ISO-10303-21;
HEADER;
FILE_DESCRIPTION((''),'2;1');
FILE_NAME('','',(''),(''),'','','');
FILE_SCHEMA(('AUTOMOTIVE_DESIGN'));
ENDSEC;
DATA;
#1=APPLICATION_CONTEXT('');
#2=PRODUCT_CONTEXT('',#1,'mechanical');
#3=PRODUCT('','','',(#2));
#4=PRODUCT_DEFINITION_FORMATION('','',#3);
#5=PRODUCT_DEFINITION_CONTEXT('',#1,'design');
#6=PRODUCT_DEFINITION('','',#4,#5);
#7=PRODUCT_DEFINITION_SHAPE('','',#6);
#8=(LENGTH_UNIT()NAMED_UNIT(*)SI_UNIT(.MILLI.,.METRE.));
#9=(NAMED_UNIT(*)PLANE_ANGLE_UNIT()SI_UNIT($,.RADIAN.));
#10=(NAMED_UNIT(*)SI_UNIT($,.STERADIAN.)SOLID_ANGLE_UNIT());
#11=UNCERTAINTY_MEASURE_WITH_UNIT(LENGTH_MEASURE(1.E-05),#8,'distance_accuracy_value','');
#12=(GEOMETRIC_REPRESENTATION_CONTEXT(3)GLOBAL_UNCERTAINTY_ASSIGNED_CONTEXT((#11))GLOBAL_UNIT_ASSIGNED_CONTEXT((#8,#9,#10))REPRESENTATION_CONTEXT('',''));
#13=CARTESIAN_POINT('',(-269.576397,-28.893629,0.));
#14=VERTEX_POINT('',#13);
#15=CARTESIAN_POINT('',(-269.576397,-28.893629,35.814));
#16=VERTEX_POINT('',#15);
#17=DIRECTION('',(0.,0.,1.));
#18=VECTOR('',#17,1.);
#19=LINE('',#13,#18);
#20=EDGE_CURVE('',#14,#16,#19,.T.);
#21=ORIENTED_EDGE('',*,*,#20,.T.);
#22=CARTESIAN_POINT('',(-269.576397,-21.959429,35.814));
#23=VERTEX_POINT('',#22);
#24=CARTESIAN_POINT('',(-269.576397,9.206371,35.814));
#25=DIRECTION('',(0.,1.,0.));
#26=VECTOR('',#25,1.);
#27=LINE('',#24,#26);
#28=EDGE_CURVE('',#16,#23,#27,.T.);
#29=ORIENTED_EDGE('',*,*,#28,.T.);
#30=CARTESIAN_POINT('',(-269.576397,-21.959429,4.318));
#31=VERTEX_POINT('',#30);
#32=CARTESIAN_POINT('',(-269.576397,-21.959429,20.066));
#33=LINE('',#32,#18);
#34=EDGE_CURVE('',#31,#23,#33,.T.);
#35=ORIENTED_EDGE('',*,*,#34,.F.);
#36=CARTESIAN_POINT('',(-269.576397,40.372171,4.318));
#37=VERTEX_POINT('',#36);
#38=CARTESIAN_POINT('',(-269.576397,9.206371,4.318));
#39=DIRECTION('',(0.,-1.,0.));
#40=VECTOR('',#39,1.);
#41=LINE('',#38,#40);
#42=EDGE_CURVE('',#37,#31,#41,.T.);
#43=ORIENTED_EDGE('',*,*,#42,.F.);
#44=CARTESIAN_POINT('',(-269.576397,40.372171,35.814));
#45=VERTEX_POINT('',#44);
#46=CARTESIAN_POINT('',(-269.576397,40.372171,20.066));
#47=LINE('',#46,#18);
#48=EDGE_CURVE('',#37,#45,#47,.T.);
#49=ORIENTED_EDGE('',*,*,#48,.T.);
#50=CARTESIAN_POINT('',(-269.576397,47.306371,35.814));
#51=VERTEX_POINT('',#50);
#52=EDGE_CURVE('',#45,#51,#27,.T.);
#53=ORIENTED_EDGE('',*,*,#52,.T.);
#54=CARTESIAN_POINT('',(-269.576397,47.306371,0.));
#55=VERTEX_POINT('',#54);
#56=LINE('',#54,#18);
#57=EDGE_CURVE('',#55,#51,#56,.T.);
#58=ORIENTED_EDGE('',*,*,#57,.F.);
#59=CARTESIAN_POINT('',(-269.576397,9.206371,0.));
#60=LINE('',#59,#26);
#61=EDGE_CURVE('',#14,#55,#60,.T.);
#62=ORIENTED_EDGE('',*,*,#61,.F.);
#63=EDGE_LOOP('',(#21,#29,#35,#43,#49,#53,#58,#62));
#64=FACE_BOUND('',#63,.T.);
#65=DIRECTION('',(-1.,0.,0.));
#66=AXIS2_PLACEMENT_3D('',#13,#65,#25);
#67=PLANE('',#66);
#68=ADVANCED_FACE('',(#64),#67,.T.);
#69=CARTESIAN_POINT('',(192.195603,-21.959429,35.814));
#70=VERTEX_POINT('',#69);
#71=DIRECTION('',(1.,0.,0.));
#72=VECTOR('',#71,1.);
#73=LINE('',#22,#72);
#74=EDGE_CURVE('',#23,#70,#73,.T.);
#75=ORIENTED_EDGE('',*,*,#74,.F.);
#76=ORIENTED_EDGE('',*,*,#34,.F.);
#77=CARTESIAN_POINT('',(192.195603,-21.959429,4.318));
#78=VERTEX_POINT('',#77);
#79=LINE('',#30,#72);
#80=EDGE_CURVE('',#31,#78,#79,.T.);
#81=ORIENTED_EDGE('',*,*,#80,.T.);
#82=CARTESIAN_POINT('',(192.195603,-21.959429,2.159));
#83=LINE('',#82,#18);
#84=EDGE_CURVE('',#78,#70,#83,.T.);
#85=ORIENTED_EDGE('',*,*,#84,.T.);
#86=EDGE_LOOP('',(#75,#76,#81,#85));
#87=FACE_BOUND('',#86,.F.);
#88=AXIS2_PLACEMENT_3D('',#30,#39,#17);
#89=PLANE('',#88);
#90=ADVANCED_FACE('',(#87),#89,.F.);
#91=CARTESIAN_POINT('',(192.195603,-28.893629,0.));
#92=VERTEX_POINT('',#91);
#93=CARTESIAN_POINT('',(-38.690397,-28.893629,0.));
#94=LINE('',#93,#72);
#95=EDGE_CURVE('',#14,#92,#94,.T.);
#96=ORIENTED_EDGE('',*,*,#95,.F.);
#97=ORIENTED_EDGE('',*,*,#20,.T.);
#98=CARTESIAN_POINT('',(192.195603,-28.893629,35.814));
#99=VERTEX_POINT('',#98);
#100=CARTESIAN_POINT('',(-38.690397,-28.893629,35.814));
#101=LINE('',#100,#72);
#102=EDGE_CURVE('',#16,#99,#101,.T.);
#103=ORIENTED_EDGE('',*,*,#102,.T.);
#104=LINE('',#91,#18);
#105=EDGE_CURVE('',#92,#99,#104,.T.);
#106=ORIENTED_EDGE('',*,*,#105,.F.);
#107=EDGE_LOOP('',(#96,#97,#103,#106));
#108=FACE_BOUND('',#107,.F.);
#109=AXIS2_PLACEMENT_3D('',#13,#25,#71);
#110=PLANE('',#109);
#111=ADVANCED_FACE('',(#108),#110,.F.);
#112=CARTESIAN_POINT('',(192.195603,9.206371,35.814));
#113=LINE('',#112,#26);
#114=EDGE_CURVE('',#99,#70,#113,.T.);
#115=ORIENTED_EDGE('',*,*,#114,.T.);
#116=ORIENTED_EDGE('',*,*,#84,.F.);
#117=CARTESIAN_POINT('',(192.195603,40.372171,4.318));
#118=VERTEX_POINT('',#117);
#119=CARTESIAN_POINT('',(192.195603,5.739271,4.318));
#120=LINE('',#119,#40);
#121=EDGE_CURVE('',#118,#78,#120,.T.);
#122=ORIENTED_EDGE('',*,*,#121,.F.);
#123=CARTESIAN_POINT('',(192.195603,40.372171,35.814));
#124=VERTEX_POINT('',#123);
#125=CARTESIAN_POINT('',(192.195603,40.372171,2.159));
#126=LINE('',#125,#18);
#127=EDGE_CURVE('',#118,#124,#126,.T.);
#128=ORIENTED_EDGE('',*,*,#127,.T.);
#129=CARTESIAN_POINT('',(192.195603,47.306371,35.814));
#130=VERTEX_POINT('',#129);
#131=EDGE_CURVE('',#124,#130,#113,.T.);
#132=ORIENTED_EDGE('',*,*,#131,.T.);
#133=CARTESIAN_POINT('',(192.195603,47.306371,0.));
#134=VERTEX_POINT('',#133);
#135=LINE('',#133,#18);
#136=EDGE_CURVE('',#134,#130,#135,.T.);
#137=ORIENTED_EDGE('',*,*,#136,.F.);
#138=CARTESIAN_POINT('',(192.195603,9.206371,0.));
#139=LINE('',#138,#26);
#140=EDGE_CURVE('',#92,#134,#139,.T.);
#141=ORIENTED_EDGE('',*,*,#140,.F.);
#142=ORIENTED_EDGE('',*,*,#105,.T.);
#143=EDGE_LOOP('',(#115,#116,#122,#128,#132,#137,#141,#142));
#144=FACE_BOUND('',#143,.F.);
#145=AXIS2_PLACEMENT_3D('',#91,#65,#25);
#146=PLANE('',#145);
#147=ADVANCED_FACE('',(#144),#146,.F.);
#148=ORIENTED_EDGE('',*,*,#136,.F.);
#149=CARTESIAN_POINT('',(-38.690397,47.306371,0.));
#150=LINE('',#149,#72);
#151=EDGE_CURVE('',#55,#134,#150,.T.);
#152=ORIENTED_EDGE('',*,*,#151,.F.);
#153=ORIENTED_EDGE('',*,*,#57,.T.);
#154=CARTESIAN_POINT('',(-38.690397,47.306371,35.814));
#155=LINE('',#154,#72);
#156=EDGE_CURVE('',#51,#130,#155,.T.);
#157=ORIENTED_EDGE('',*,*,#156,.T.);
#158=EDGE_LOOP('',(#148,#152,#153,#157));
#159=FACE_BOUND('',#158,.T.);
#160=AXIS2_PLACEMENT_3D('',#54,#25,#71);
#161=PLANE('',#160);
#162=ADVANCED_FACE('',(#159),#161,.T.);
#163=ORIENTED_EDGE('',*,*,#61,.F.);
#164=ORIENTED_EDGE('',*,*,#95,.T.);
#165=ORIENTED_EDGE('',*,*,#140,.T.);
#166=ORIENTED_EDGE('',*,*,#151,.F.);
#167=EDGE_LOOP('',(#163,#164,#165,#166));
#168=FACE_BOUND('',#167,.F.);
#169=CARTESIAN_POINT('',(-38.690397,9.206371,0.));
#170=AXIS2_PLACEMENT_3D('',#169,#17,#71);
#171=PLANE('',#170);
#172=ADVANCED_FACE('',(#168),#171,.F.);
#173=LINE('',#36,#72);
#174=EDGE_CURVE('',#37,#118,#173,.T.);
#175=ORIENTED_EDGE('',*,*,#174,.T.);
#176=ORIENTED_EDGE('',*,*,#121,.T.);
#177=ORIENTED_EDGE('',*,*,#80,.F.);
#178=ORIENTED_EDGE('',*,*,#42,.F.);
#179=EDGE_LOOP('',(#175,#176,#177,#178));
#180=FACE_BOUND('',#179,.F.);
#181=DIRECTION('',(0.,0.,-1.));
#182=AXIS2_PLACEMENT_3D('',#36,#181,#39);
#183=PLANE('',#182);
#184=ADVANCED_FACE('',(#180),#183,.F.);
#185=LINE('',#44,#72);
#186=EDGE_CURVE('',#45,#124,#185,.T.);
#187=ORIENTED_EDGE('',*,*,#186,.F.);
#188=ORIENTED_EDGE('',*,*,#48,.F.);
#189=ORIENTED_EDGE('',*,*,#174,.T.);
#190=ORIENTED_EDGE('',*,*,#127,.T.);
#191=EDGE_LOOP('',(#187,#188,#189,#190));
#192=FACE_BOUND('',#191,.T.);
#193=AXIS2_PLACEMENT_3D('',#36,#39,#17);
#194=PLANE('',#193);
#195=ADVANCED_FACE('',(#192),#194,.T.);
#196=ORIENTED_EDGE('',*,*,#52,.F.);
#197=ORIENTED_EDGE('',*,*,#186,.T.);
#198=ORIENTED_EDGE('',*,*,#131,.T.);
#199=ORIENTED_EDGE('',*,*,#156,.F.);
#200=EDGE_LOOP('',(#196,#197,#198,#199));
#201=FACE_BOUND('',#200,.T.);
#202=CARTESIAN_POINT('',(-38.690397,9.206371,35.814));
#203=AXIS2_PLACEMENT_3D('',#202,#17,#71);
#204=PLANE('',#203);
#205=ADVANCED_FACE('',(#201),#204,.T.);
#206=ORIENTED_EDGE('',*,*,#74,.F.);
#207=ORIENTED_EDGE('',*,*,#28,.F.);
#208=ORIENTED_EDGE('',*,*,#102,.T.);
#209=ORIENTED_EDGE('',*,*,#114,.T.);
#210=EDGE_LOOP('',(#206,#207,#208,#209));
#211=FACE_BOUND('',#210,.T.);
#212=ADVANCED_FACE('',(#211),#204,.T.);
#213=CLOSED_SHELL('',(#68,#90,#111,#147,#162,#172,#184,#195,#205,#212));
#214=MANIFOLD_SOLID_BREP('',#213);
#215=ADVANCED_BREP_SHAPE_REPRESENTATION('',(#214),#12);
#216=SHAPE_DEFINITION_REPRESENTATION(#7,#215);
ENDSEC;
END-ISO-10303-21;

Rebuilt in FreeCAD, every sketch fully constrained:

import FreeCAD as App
import Part
import Sketcher
Q = App.Units.Quantity

doc = App.newDocument("Part")
body = doc.addObject("PartDesign::Body", "Body")

# Sketch on XY plane
sketch1 = body.newObject("Sketcher::SketchObject", "Sketch")
sketch1.AttachmentSupport = (doc.getObject("XY_Plane"), [""])
sketch1.MapMode = "FlatFace"
sketch1.addGeometry(Part.LineSegment(App.Vector(-269.576397, 47.306371, 0), App.Vector(-269.576397, -28.893629, 0)), False)
sketch1.addGeometry(Part.LineSegment(App.Vector(-269.576397, -28.893629, 0), App.Vector(192.195603, -28.893629, 0)), False)
sketch1.addGeometry(Part.LineSegment(App.Vector(192.195603, -28.893629, 0), App.Vector(192.195603, 47.306371, 0)), False)
sketch1.addGeometry(Part.LineSegment(App.Vector(192.195603, 47.306371, 0), App.Vector(-269.576397, 47.306371, 0)), False)
sketch1.addConstraint(Sketcher.Constraint("Coincident", 0, 2, 1, 1))
sketch1.addConstraint(Sketcher.Constraint("Coincident", 1, 2, 2, 1))
sketch1.addConstraint(Sketcher.Constraint("Coincident", 2, 2, 3, 1))
sketch1.addConstraint(Sketcher.Constraint("Coincident", 3, 2, 0, 1))
sketch1.addConstraint(Sketcher.Constraint("Vertical", 0))
sketch1.addConstraint(Sketcher.Constraint("Horizontal", 1))
sketch1.addConstraint(Sketcher.Constraint("Vertical", 2))
sketch1.addConstraint(Sketcher.Constraint("Horizontal", 3))
sketch1.addConstraint(Sketcher.Constraint("DistanceY", 0, 2, 0, 1, Q("3 in")))
sketch1.addConstraint(Sketcher.Constraint("DistanceX", 1, 1, 1, 2, Q("18.18 in")))
sketch1.addConstraint(Sketcher.Constraint("DistanceY", 0, 2, -1, 1, 28.893629))
sketch1.addConstraint(Sketcher.Constraint("DistanceX", 0, 2, -1, 1, 269.576397))
pad1 = body.newObject("PartDesign::Pad", "Pad")
pad1.Profile = sketch1
pad1.Length = Q("1.41 in")

# Sketch on YZ plane
sketch2 = body.newObject("Sketcher::SketchObject", "Sketch001")
sketch2.AttachmentSupport = (doc.getObject("YZ_Plane"), [""])
sketch2.MapMode = "FlatFace"
sketch2.AttachmentOffset = App.Placement(App.Vector(0, 0, -269.576397), App.Rotation())
sketch2.addGeometry(Part.LineSegment(App.Vector(40.372171, 35.814, 0), App.Vector(40.372171, 4.318, 0)), False)
sketch2.addGeometry(Part.LineSegment(App.Vector(40.372171, 4.318, 0), App.Vector(-21.959429, 4.318, 0)), False)
sketch2.addGeometry(Part.LineSegment(App.Vector(-21.959429, 4.318, 0), App.Vector(-21.959429, 35.814, 0)), False)
sketch2.addGeometry(Part.LineSegment(App.Vector(-21.959429, 35.814, 0), App.Vector(40.372171, 35.814, 0)), False)
sketch2.addConstraint(Sketcher.Constraint("Coincident", 0, 2, 1, 1))
sketch2.addConstraint(Sketcher.Constraint("Coincident", 1, 2, 2, 1))
sketch2.addConstraint(Sketcher.Constraint("Coincident", 2, 2, 3, 1))
sketch2.addConstraint(Sketcher.Constraint("Coincident", 3, 2, 0, 1))
sketch2.addConstraint(Sketcher.Constraint("Vertical", 0))
sketch2.addConstraint(Sketcher.Constraint("Horizontal", 1))
sketch2.addConstraint(Sketcher.Constraint("Vertical", 2))
sketch2.addConstraint(Sketcher.Constraint("Horizontal", 3))
sketch2.addConstraint(Sketcher.Constraint("DistanceY", 0, 2, 0, 1, Q("1.24 in")))
sketch2.addConstraint(Sketcher.Constraint("DistanceX", 1, 2, 1, 1, Q("2.454 in")))
sketch2.addConstraint(Sketcher.Constraint("DistanceY", -1, 1, 0, 2, Q("0.17 in")))
sketch2.addConstraint(Sketcher.Constraint("DistanceX", -1, 1, 0, 2, 40.372171))
pocket1 = body.newObject("PartDesign::Pocket", "Pocket")
pocket1.Profile = sketch2
pocket1.Type = "ThroughAll"
pocket1.Reversed = True

doc.recompute()
